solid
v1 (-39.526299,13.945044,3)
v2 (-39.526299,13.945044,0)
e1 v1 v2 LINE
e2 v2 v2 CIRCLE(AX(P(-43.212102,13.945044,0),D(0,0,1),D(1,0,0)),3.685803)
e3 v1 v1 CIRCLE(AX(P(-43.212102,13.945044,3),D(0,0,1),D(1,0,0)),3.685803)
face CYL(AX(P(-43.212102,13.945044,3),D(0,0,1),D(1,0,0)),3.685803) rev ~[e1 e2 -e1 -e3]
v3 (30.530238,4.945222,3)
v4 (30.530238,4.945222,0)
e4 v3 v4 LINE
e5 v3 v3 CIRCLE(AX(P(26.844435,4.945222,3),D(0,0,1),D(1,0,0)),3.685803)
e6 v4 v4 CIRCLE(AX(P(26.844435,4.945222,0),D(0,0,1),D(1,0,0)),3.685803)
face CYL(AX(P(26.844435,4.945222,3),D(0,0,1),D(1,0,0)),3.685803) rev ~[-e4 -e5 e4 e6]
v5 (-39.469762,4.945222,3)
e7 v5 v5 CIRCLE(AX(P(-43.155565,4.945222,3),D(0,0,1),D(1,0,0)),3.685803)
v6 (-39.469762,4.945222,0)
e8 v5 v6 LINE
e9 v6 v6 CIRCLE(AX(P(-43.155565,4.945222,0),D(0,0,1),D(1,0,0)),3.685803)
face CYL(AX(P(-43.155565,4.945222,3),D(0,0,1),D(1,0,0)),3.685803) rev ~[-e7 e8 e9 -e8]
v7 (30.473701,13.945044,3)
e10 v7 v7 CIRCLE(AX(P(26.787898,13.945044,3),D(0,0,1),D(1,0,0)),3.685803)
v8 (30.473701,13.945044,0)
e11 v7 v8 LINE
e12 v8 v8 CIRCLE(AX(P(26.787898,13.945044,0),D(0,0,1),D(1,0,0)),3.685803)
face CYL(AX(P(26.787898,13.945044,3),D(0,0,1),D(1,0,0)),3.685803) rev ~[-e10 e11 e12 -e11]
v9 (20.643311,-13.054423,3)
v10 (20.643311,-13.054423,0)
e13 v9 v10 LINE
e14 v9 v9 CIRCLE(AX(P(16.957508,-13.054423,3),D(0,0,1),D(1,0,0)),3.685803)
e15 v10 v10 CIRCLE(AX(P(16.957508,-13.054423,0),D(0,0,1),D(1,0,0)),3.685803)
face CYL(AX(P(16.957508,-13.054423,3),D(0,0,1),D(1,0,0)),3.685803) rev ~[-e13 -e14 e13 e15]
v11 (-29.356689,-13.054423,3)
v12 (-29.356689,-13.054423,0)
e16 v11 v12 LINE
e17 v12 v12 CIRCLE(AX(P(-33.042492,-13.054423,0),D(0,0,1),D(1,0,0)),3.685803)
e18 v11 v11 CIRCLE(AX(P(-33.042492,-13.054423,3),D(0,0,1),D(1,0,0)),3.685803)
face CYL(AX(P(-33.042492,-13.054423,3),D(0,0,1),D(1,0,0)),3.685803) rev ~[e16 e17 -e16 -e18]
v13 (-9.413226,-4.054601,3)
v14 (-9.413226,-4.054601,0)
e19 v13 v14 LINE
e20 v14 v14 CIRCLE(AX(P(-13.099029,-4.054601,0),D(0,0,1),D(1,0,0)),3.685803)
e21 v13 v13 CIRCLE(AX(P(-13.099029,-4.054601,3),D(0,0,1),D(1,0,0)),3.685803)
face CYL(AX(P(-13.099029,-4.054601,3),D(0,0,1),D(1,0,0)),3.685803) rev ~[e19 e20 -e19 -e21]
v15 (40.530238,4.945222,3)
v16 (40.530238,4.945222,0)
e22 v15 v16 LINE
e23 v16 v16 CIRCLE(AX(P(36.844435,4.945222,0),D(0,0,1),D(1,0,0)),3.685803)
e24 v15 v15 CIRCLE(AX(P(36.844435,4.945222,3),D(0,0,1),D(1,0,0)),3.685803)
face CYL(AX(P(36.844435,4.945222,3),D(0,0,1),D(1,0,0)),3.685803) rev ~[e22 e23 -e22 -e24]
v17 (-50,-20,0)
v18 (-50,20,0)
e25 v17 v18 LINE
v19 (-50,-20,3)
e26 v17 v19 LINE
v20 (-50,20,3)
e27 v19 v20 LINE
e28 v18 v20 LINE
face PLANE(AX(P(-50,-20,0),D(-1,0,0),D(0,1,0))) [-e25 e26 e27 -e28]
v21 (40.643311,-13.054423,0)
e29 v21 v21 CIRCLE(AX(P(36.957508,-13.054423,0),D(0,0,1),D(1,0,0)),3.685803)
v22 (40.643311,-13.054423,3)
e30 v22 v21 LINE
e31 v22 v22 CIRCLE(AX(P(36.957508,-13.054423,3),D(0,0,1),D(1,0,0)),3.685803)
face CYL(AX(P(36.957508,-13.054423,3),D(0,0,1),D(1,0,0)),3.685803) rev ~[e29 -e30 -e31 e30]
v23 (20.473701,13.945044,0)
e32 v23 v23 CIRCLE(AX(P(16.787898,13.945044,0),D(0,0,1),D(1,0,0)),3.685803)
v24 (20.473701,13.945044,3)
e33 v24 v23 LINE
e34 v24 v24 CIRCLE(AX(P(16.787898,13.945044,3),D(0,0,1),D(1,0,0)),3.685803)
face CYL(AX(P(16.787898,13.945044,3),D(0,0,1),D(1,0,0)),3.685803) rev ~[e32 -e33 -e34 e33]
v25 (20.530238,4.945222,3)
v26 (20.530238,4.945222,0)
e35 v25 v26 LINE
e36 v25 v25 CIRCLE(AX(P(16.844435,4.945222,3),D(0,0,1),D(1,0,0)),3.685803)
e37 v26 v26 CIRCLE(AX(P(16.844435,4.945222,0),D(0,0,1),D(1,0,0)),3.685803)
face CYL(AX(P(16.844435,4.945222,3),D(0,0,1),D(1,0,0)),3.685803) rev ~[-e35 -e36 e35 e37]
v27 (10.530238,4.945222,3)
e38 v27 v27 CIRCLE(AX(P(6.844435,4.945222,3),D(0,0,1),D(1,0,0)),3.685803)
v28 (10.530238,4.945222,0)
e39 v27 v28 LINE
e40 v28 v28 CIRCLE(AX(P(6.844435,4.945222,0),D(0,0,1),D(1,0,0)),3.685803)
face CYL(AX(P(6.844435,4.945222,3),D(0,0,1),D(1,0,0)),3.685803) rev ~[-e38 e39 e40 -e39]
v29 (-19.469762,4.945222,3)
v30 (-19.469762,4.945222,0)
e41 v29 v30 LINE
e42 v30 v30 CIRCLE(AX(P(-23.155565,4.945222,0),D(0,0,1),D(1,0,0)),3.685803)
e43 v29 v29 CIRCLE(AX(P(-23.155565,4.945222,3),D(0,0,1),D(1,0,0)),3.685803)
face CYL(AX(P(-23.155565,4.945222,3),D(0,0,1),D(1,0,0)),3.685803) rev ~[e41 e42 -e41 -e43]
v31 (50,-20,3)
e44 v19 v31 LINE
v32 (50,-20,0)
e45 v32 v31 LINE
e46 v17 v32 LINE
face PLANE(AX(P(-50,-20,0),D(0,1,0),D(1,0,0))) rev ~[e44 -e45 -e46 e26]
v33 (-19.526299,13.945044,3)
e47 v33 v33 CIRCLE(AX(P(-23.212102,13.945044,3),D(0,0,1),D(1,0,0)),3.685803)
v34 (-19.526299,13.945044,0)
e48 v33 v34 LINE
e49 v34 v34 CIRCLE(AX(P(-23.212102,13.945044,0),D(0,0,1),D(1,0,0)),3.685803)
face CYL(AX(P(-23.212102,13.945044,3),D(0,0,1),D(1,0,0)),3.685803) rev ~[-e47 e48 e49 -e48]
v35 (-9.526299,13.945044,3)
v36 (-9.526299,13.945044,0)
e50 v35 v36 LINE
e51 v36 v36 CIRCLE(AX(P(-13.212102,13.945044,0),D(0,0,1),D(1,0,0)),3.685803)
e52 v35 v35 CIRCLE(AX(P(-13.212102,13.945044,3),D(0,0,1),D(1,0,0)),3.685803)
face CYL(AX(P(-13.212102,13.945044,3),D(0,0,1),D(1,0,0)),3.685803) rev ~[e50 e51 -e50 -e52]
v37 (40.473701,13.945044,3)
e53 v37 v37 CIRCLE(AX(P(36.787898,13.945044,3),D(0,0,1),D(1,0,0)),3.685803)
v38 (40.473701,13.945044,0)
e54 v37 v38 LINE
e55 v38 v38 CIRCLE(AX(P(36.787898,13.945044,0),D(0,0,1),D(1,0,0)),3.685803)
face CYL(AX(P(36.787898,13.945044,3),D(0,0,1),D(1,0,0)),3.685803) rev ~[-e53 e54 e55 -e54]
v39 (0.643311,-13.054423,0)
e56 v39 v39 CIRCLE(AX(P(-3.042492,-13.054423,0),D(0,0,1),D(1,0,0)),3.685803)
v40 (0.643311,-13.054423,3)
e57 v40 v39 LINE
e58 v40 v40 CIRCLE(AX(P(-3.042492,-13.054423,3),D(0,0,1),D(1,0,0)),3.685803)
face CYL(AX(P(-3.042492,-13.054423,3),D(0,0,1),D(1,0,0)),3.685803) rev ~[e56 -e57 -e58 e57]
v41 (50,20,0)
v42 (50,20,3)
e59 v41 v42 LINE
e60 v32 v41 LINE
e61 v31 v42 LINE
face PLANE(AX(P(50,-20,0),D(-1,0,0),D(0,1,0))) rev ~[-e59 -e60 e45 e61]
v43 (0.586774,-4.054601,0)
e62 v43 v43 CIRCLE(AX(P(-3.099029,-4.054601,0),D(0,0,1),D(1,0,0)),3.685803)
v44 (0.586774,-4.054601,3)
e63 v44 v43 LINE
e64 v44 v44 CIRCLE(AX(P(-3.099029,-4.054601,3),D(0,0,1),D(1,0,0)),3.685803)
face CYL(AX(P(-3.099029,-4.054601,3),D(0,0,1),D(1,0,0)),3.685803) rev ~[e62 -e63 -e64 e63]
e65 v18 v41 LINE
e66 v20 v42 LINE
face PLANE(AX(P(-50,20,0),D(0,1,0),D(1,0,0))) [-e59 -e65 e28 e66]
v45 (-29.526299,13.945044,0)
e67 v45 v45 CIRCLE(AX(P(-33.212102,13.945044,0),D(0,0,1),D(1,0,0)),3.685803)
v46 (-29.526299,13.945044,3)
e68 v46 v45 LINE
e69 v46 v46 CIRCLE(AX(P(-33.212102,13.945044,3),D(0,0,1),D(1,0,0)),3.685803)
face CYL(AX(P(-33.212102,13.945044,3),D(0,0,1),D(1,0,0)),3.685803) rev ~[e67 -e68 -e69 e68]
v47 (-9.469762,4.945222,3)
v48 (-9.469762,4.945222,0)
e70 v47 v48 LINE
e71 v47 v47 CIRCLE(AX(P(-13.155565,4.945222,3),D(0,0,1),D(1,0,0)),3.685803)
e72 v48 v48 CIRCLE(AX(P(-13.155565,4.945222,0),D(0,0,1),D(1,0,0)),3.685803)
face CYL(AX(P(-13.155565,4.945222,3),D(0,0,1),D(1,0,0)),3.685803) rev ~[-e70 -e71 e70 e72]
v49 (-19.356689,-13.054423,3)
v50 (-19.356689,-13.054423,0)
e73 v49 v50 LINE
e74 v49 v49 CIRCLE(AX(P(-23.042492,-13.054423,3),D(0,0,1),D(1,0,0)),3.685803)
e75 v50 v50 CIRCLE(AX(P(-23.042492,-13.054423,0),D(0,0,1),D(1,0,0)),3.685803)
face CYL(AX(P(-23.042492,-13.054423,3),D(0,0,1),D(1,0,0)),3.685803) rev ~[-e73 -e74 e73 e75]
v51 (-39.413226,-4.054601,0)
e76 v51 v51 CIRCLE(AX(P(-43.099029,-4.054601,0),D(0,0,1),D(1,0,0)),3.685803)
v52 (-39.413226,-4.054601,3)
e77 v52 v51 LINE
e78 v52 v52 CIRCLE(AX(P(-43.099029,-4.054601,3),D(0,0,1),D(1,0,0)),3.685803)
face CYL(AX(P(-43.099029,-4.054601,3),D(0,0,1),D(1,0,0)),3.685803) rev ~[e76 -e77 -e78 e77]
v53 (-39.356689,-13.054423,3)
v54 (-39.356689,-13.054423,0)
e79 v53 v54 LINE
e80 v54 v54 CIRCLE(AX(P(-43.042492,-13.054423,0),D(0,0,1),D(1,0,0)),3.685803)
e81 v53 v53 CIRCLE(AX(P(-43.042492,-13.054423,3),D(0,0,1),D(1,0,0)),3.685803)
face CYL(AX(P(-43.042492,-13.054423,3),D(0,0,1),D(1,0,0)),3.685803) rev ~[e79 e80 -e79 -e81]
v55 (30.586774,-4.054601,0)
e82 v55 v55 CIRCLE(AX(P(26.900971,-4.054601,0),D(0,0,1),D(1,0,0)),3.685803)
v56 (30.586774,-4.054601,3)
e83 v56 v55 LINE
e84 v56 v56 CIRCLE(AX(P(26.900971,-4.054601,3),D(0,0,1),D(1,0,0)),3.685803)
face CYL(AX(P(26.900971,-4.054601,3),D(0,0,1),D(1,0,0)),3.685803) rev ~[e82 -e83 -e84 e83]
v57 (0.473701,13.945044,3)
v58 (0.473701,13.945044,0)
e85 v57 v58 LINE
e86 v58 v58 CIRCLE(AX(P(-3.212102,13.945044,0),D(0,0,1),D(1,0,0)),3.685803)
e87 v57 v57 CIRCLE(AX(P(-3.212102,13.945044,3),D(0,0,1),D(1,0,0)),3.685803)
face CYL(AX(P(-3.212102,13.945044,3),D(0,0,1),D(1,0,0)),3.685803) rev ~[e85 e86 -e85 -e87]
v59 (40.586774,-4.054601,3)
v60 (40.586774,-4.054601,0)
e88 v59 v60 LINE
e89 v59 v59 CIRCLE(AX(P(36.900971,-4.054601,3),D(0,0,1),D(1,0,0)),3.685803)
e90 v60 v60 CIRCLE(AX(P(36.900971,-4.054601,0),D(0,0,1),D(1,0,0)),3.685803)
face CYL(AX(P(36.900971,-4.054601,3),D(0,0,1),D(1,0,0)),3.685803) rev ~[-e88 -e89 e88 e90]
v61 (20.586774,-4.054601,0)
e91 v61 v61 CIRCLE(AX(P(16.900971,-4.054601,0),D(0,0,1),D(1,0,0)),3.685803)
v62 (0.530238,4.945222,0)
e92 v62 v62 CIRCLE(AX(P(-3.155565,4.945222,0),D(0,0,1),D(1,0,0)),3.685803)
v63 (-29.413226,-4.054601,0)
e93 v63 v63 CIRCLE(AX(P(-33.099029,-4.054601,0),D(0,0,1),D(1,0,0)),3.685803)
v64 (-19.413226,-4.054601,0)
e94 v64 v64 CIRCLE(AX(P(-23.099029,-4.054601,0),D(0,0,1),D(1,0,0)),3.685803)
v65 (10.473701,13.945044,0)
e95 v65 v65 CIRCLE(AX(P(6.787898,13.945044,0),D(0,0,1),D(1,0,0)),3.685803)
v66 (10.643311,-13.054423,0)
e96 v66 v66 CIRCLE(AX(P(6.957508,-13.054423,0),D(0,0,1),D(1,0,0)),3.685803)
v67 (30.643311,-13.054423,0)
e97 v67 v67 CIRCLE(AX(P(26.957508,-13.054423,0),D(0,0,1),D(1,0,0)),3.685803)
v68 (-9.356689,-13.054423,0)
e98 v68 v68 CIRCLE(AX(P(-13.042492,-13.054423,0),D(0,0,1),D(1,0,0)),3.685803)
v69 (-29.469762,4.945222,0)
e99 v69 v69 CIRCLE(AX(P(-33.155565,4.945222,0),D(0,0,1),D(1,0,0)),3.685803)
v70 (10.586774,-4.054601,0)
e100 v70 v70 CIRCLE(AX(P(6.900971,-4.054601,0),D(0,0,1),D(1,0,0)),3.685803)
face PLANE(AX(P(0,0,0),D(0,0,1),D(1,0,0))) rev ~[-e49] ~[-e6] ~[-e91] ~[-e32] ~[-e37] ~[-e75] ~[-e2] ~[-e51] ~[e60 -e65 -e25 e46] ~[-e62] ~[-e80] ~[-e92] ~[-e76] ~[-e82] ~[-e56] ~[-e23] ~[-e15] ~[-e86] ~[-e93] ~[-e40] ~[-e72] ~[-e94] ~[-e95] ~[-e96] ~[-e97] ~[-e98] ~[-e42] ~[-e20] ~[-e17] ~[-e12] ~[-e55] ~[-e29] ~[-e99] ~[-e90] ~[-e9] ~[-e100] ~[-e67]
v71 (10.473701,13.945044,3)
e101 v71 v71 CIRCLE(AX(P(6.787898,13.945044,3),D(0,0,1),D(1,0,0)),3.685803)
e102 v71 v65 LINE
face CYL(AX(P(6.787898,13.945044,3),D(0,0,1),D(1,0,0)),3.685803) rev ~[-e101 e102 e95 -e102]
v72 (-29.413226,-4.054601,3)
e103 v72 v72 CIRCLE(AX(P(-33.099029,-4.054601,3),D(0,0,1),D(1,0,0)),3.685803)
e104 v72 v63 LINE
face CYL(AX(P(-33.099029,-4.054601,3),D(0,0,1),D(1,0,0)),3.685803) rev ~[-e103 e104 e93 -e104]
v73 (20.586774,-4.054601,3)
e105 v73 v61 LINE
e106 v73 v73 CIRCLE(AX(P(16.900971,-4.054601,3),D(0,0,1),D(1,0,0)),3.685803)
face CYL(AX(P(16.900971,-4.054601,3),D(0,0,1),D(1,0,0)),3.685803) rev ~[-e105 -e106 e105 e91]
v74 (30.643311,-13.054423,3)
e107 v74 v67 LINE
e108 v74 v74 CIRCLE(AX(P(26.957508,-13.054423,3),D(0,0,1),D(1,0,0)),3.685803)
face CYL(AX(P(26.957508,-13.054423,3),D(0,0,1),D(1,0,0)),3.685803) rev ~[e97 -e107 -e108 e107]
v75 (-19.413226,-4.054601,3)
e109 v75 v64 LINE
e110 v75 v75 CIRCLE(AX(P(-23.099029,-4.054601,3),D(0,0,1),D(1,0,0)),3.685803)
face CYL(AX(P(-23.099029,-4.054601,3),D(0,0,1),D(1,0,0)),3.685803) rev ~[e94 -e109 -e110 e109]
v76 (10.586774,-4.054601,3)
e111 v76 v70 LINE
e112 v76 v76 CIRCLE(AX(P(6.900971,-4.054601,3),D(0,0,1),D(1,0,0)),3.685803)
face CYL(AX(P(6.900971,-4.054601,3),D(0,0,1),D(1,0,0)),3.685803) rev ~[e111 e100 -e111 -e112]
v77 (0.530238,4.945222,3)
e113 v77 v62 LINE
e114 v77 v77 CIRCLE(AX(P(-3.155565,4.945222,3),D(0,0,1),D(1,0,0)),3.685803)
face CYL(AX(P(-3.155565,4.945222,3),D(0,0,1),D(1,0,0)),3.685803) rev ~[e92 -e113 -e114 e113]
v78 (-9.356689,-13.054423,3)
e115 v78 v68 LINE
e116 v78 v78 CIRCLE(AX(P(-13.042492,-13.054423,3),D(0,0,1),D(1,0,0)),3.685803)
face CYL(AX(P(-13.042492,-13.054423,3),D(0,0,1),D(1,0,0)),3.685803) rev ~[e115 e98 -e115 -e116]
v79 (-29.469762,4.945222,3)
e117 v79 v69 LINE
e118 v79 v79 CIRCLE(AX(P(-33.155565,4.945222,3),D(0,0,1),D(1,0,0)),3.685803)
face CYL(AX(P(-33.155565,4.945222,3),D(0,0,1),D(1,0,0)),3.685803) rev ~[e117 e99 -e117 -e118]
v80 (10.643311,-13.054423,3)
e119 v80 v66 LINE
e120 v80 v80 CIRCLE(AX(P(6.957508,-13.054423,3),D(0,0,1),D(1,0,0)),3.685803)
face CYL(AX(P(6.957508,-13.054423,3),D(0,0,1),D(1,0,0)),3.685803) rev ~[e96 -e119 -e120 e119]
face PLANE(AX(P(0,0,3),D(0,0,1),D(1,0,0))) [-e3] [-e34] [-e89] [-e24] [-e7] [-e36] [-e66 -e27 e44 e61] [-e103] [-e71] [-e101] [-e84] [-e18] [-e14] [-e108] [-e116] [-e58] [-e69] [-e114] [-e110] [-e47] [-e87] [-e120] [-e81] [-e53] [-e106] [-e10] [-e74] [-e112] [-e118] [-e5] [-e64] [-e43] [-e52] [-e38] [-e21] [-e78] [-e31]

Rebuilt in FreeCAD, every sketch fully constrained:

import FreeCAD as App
import Part
import Sketcher

V = App.Vector

doc = App.newDocument("Part")
body = doc.addObject("PartDesign::Body", "Body")

sketch1 = body.newObject("Sketcher::SketchObject", "Sketch")
sketch1.AttachmentSupport = (doc.getObject("XY_Plane"), [""])
sketch1.MapMode = "FlatFace"
sketch1.addGeometry([
    Part.LineSegment(V(-50, 20, 0), V(-50, -20, 0)),
    Part.LineSegment(V(-50, -20, 0), V(50, -20, 0)),
    Part.LineSegment(V(50, -20, 0), V(50, 20, 0)),
    Part.LineSegment(V(50, 20, 0), V(-50, 20, 0)),
], False)
sketch1.addConstraint([
    Sketcher.Constraint("Coincident", 0, 2, 1, 1),
    Sketcher.Constraint("Coincident", 1, 2, 2, 1),
    Sketcher.Constraint("Coincident", 2, 2, 3, 1),
    Sketcher.Constraint("Coincident", 3, 2, 0, 1),
    Sketcher.Constraint("Vertical", 0),
    Sketcher.Constraint("Horizontal", 1),
    Sketcher.Constraint("Vertical", 2),
    Sketcher.Constraint("Horizontal", 3),
    Sketcher.Constraint("Symmetric", 0, 2, 2, 2, -1, 1),
    Sketcher.Constraint("DistanceX", 1, 1, 1, 2, 100.0),
    Sketcher.Constraint("DistanceY", 0, 2, 0, 1, 40.0),
])
pad1 = body.newObject("PartDesign::Pad", "Pad")
pad1.Profile = sketch1
pad1.Length = 3

sketch2 = body.newObject("Sketcher::SketchObject", "Sketch001")
sketch2.AttachmentSupport = (doc.getObject("XY_Plane"), [""])
sketch2.MapMode = "FlatFace"
sketch2.AttachmentOffset = App.Placement(V(0, 0, 3), App.Rotation())
sketch2.addGeometry([
    Part.Circle(V(-43, -13.1, 0), V(0, 0, 1), 3.7),
    Part.Circle(V(-43.1, -4.1, 0), V(0, 0, 1), 3.7),
    Part.Circle(V(-43.2, 4.9, 0), V(0, 0, 1), 3.7),
    Part.Circle(V(-43.2, 13.9, 0), V(0, 0, 1), 3.7),
    Part.Circle(V(-33.2, 4.9, 0), V(0, 0, 1), 3.7),
    Part.Circle(V(-33.2, 13.9, 0), V(0, 0, 1), 3.7),
    Part.Circle(V(-33.1, -4.1, 0), V(0, 0, 1), 3.7),
    Part.Circle(V(-33, -13.1, 0), V(0, 0, 1), 3.7),
    Part.Circle(V(-23, -13.1, 0), V(0, 0, 1), 3.7),
    Part.Circle(V(-23.1, -4.1, 0), V(0, 0, 1), 3.7),
    Part.Circle(V(-23.2, 13.9, 0), V(0, 0, 1), 3.7),
    Part.Circle(V(-23.2, 4.9, 0), V(0, 0, 1), 3.7),
    Part.Circle(V(-13.1, -4.1, 0), V(0, 0, 1), 3.7),
    Part.Circle(V(-13, -13.1, 0), V(0, 0, 1), 3.7),
    Part.Circle(V(-3, -13.1, 0), V(0, 0, 1), 3.7),
    Part.Circle(V(-3.1, -4.1, 0), V(0, 0, 1), 3.7),
    Part.Circle(V(-13.2, 4.9, 0), V(0, 0, 1), 3.7),
    Part.Circle(V(-13.2, 13.9, 0), V(0, 0, 1), 3.7),
    Part.Circle(V(-3.2, 13.9, 0), V(0, 0, 1), 3.7),
    Part.Circle(V(-3.2, 4.9, 0), V(0, 0, 1), 3.7),
    Part.Circle(V(7, -13.1, 0), V(0, 0, 1), 3.7),
    Part.Circle(V(6.9, -4.1, 0), V(0, 0, 1), 3.7),
    Part.Circle(V(6.8, 4.9, 0), V(0, 0, 1), 3.7),
    Part.Circle(V(6.8, 13.9, 0), V(0, 0, 1), 3.7),
    Part.Circle(V(17, -13.1, 0), V(0, 0, 1), 3.7),
    Part.Circle(V(16.9, -4.1, 0), V(0, 0, 1), 3.7),
    Part.Circle(V(16.8, 4.9, 0), V(0, 0, 1), 3.7),
    Part.Circle(V(16.8, 13.9, 0), V(0, 0, 1), 3.7),
    Part.Circle(V(27, -13.1, 0), V(0, 0, 1), 3.7),
    Part.Circle(V(26.9, -4.1, 0), V(0, 0, 1), 3.7),
    Part.Circle(V(26.8, 4.9, 0), V(0, 0, 1), 3.7),
    Part.Circle(V(36.9, -4.1, 0), V(0, 0, 1), 3.7),
    Part.Circle(V(37, -13.1, 0), V(0, 0, 1), 3.7),
    Part.Circle(V(36.8, 4.9, 0), V(0, 0, 1), 3.7),
    Part.Circle(V(36.8, 13.9, 0), V(0, 0, 1), 3.7),
    Part.Circle(V(26.8, 13.9, 0), V(0, 0, 1), 3.7),
], False)
sketch2.addConstraint([
    Sketcher.Constraint("Equal", 0, 1),
    Sketcher.Constraint("Equal", 1, 2),
    Sketcher.Constraint("Equal", 2, 3),
    Sketcher.Constraint("Equal", 3, 4),
    Sketcher.Constraint("Equal", 4, 5),
    Sketcher.Constraint("Equal", 5, 6),
    Sketcher.Constraint("Equal", 6, 7),
    Sketcher.Constraint("Equal", 7, 8),
    Sketcher.Constraint("Equal", 8, 9),
    Sketcher.Constraint("Equal", 9, 10),
    Sketcher.Constraint("Equal", 10, 11),
    Sketcher.Constraint("Equal", 11, 12),
    Sketcher.Constraint("Equal", 12, 13),
    Sketcher.Constraint("Equal", 13, 14),
    Sketcher.Constraint("Equal", 14, 15),
    Sketcher.Constraint("Equal", 15, 16),
    Sketcher.Constraint("Equal", 16, 17),
    Sketcher.Constraint("Equal", 17, 18),
    Sketcher.Constraint("Equal", 18, 19),
    Sketcher.Constraint("Equal", 19, 20),
    Sketcher.Constraint("Equal", 20, 21),
    Sketcher.Constraint("Equal", 21, 22),
    Sketcher.Constraint("Equal", 22, 23),
    Sketcher.Constraint("Equal", 23, 24),
    Sketcher.Constraint("Equal", 24, 25),
    Sketcher.Constraint("Equal", 25, 26),
    Sketcher.Constraint("Equal", 26, 27),
    Sketcher.Constraint("Equal", 27, 28),
    Sketcher.Constraint("Equal", 28, 29),
    Sketcher.Constraint("Equal", 29, 30),
    Sketcher.Constraint("Equal", 30, 31),
    Sketcher.Constraint("Equal", 31, 32),
    Sketcher.Constraint("Equal", 32, 33),
    Sketcher.Constraint("Equal", 33, 34),
    Sketcher.Constraint("Equal", 34, 35),
    Sketcher.Constraint("Horizontal", 2, 3, 4, 3),
    Sketcher.Constraint("Horizontal", 3, 3, 5, 3),
    Sketcher.Constraint("Horizontal", 1, 3, 6, 3),
    Sketcher.Constraint("Horizontal", 0, 3, 7, 3),
    Sketcher.Constraint("Horizontal", 7, 3, 8, 3),
    Sketcher.Constraint("Horizontal", 6, 3, 9, 3),
    Sketcher.Constraint("Horizontal", 5, 3, 10, 3),
    Sketcher.Constraint("Horizontal", 4, 3, 11, 3),
    Sketcher.Constraint("Horizontal", 9, 3, 12, 3),
    Sketcher.Constraint("Horizontal", 8, 3, 13, 3),
    Sketcher.Constraint("Horizontal", 13, 3, 14, 3),
    Sketcher.Constraint("Horizontal", 12, 3, 15, 3),
    Sketcher.Constraint("Horizontal", 11, 3, 16, 3),
    Sketcher.Constraint("Horizontal", 10, 3, 17, 3),
    Sketcher.Constraint("Horizontal", 17, 3, 18, 3),
    Sketcher.Constraint("Horizontal", 16, 3, 19, 3),
    Sketcher.Constraint("Horizontal", 14, 3, 20, 3),
    Sketcher.Constraint("Horizontal", 15, 3, 21, 3),
    Sketcher.Constraint("Horizontal", 19, 3, 22, 3),
    Sketcher.Constraint("Horizontal", 18, 3, 23, 3),
    Sketcher.Constraint("Horizontal", 20, 3, 24, 3),
    Sketcher.Constraint("Horizontal", 21, 3, 25, 3),
    Sketcher.Constraint("Horizontal", 22, 3, 26, 3),
    Sketcher.Constraint("Horizontal", 23, 3, 27, 3),
    Sketcher.Constraint("Horizontal", 24, 3, 28, 3),
    Sketcher.Constraint("Horizontal", 25, 3, 29, 3),
    Sketcher.Constraint("Horizontal", 26, 3, 30, 3),
    Sketcher.Constraint("Horizontal", 29, 3, 31, 3),
    Sketcher.Constraint("Horizontal", 28, 3, 32, 3),
    Sketcher.Constraint("Horizontal", 30, 3, 33, 3),
    Sketcher.Constraint("Horizontal", 27, 3, 34, 3),
    Sketcher.Constraint("Horizontal", 34, 3, 35, 3),
    Sketcher.Constraint("DistanceX", 2, 3, 4, 3, 10.0),
    Sketcher.Constraint("DistanceX", 3, 3, 5, 3, 10.0),
    Sketcher.Constraint("DistanceX", 1, 3, 6, 3, 10.0),
    Sketcher.Constraint("DistanceX", 0, 3, 7, 3, 10.0),
    Sketcher.Constraint("DistanceX", 7, 3, 8, 3, 10.0),
    Sketcher.Constraint("DistanceX", 6, 3, 9, 3, 10.0),
    Sketcher.Constraint("DistanceX", 5, 3, 10, 3, 10.0),
    Sketcher.Constraint("DistanceX", 4, 3, 11, 3, 10.0),
    Sketcher.Constraint("DistanceX", 9, 3, 12, 3, 10.0),
    Sketcher.Constraint("DistanceX", 8, 3, 13, 3, 10.0),
    Sketcher.Constraint("DistanceX", 13, 3, 14, 3, 10.0),
    Sketcher.Constraint("DistanceX", 12, 3, 15, 3, 10.0),
    Sketcher.Constraint("DistanceX", 11, 3, 16, 3, 10.0),
    Sketcher.Constraint("DistanceX", 10, 3, 17, 3, 10.0),
    Sketcher.Constraint("DistanceX", 17, 3, 18, 3, 10.0),
    Sketcher.Constraint("DistanceX", 16, 3, 19, 3, 10.0),
    Sketcher.Constraint("DistanceX", 14, 3, 20, 3, 10.0),
    Sketcher.Constraint("DistanceX", 15, 3, 21, 3, 10.0),
    Sketcher.Constraint("DistanceX", 19, 3, 22, 3, 10.0),
    Sketcher.Constraint("DistanceX", 18, 3, 23, 3, 10.0),
    Sketcher.Constraint("DistanceX", 20, 3, 24, 3, 10.0),
    Sketcher.Constraint("DistanceX", 21, 3, 25, 3, 10.0),
    Sketcher.Constraint("DistanceX", 22, 3, 26, 3, 10.0),
    Sketcher.Constraint("DistanceX", 23, 3, 27, 3, 10.0),
    Sketcher.Constraint("DistanceX", 24, 3, 28, 3, 10.0),
    Sketcher.Constraint("DistanceX", 25, 3, 29, 3, 10.0),
    Sketcher.Constraint("DistanceX", 26, 3, 30, 3, 10.0),
    Sketcher.Constraint("DistanceX", 29, 3, 31, 3, 10.0),
    Sketcher.Constraint("DistanceX", 28, 3, 32, 3, 10.0),
    Sketcher.Constraint("DistanceX", 30, 3, 33, 3, 10.0),
    Sketcher.Constraint("DistanceX", 27, 3, 34, 3, 20.0),
    Sketcher.Constraint("DistanceX", 27, 3, 35, 3, 10.0),
    Sketcher.Constraint("Diameter", 0, 7.371606),
    Sketcher.Constraint("DistanceY", 1, 3, -1, 1, 4.054601),
    Sketcher.Constraint("DistanceX", 18, 3, -1, 1, 3.212102),
    Sketcher.Constraint("DistanceX", 1, 3, -1, 1, 43.099029),
    Sketcher.Constraint("DistanceX", 8, 3, -1, 1, 23.042492),
    Sketcher.Constraint("DistanceY", 2, 3, 3, 3, 8.999822),
    Sketcher.Constraint("DistanceY", 0, 3, -1, 1, 13.054423),
    Sketcher.Constraint("DistanceX", 2, 3, -1, 1, 43.155565),
    Sketcher.Constraint("DistanceY", -1, 1, 2, 3, 4.945222),
])
pocket1 = body.newObject("PartDesign::Pocket", "Pocket")
pocket1.Profile = sketch2
pocket1.Length = 25

doc.recompute()
